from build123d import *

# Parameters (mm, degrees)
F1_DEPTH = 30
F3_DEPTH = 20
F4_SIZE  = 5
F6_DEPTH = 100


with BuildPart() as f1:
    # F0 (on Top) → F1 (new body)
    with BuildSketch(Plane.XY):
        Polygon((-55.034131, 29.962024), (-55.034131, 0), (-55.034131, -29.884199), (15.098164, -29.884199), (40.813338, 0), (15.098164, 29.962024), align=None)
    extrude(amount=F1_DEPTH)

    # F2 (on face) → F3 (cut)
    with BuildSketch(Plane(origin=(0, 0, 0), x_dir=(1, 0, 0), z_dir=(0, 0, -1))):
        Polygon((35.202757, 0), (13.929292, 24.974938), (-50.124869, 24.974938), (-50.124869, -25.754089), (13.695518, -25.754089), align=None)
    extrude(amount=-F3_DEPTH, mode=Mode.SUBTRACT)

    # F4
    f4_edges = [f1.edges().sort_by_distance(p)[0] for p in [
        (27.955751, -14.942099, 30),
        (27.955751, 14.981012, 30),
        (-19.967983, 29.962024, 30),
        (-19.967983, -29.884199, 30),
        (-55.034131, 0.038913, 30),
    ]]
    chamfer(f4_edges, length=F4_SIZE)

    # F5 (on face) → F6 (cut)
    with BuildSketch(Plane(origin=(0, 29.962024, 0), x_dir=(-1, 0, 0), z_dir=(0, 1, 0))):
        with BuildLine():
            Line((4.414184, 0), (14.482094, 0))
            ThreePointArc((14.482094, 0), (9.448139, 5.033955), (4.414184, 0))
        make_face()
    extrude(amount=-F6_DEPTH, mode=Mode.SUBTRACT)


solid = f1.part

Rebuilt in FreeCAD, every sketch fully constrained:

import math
import FreeCAD as App
import Part
import Sketcher
from FreeCAD import Vector


def edges_at(feature, points):
    """Names of the edges that pass closest to the given points."""
    edges = feature.Shape.Edges
    near = lambda p: min(range(len(edges)), key=lambda i: edges[i].distToShape(Part.Vertex(*p))[0])
    return sorted({f"Edge{near(p) + 1}" for p in points})

doc = App.newDocument("Part")
body = doc.addObject("PartDesign::Body", "Body")

sketch1 = doc.addObject("Sketcher::SketchObject", "Sketch")
body.addObject(sketch1)
sketch1.AttachmentSupport = (doc.XY_Plane, [""])
sketch1.MapMode = "FlatFace"
sketch1.addGeometry([
    Part.LineSegment(Vector(-55, 30, 0), Vector(-55, -30, 0)),
    Part.LineSegment(Vector(-55, -30, 0), Vector(15, -30, 0)),
    Part.LineSegment(Vector(15, -30, 0), Vector(41, 0, 0)),
    Part.LineSegment(Vector(41, 0, 0), Vector(15, 30, 0)),
    Part.LineSegment(Vector(15, 30, 0), Vector(-55, 30, 0)),
], False)
sketch1.addConstraint([
    Sketcher.Constraint("Coincident", 0, 2, 1, 1),
    Sketcher.Constraint("Coincident", 1, 2, 2, 1),
    Sketcher.Constraint("Coincident", 2, 2, 3, 1),
    Sketcher.Constraint("Coincident", 3, 2, 4, 1),
    Sketcher.Constraint("Coincident", 4, 2, 0, 1),
    Sketcher.Constraint("Vertical", 0),
    Sketcher.Constraint("Horizontal", 1),
    Sketcher.Constraint("Horizontal", 4),
    Sketcher.Constraint("PointOnObject", 2, 2, -1),
    Sketcher.Constraint("Vertical", 1, 2, 3, 2),
    Sketcher.Constraint("DistanceY", 0, 2, -1, 1, 29.884199),
    Sketcher.Constraint("DistanceX", 1, 1, 1, 2, 70.132295),
    Sketcher.Constraint("DistanceY", 0, 2, 0, 1, 59.846223),
    Sketcher.Constraint("DistanceX", 0, 2, -1, 1, 55.034131),
    Sketcher.Constraint("DistanceX", -1, 1, 2, 2, 40.813338),
])
pad1 = doc.addObject("PartDesign::Pad", "Pad")
body.addObject(pad1)
pad1.Profile = sketch1
pad1.Length = 30

sketch2 = doc.addObject("Sketcher::SketchObject", "Sketch001")
body.addObject(sketch2)
sketch2.AttachmentSupport = (doc.XY_Plane, [""])
sketch2.MapMode = "FlatFace"
sketch2.addGeometry([
    Part.LineSegment(Vector(35, 0, 0), Vector(14, -25, 0)),
    Part.LineSegment(Vector(14, -25, 0), Vector(-50, -25, 0)),
    Part.LineSegment(Vector(-50, -25, 0), Vector(-50, 26, 0)),
    Part.LineSegment(Vector(-50, 26, 0), Vector(14, 26, 0)),
    Part.LineSegment(Vector(14, 26, 0), Vector(35, 0, 0)),
], False)
sketch2.addConstraint([
    Sketcher.Constraint("Coincident", 0, 2, 1, 1),
    Sketcher.Constraint("Coincident", 1, 2, 2, 1),
    Sketcher.Constraint("Coincident", 2, 2, 3, 1),
    Sketcher.Constraint("Coincident", 3, 2, 4, 1),
    Sketcher.Constraint("Coincident", 4, 2, 0, 1),
    Sketcher.Constraint("Horizontal", 1),
    Sketcher.Constraint("Vertical", 2),
    Sketcher.Constraint("Horizontal", 3),
    Sketcher.Constraint("PointOnObject", 4, 2, -1),
    Sketcher.Constraint("DistanceX", 1, 2, 1, 1, 64.054161),
    Sketcher.Constraint("Distance", 0, 32.807131),
    Sketcher.Constraint("DistanceX", 3, 1, 3, 2, 63.820387),
    Sketcher.Constraint("DistanceY", 2, 1, 2, 2, 50.729027),
    Sketcher.Constraint("DistanceY", 0, 2, -1, 1, 24.974938),
    Sketcher.Constraint("DistanceX", 1, 2, -1, 1, 50.124869),
])
pocket1 = doc.addObject("PartDesign::Pocket", "Pocket")
body.addObject(pocket1)
pocket1.Profile = sketch2
pocket1.Length = 20
pocket1.Reversed = True
doc.recompute()

chamfer = doc.addObject("PartDesign::Chamfer", "Chamfer")
body.addObject(chamfer)
chamfer.Base = (pocket1, edges_at(pocket1, [
    (27.956, -14.942, 30),
    (27.956, 14.981, 30),
    (-19.968, 29.962, 30),
    (-19.968, -29.884, 30),
    (-55.034, 0.039, 30),
]))
chamfer.Size = 5

sketch3 = doc.addObject("Sketcher::SketchObject", "Sketch002")
body.addObject(sketch3)
sketch3.AttachmentSupport = (doc.XZ_Plane, [""])
sketch3.MapMode = "FlatFace"
sketch3.AttachmentOffset = App.Placement(Vector(0, 0, -29.962024), App.Rotation())
sketch3.addGeometry([
    Part.LineSegment(Vector(-4, 0, 0), Vector(-14, 0, 0)),
    Part.ArcOfCircle(Part.Circle(Vector(-9, 0, 0), Vector(0, 0, 1), 5), math.radians(0), math.radians(180)),
], False)
sketch3.addConstraint([
    Sketcher.Constraint("Coincident", 0, 1, 1, 1),
    Sketcher.Constraint("Coincident", 1, 2, 0, 2),
    Sketcher.Constraint("Horizontal", 0),
    Sketcher.Constraint("PointOnObject", 1, 3, -1),
    Sketcher.Constraint("PointOnObject", 0, 1, -1),
    Sketcher.Constraint("Radius", 1, 5.033955),
    Sketcher.Constraint("DistanceX", 1, 3, -1, 1, 9.448139),
])
pocket2 = doc.addObject("PartDesign::Pocket", "Pocket001")
body.addObject(pocket2)
pocket2.Profile = sketch3
pocket2.Length = 100
pocket2.Reversed = True

doc.recompute()
